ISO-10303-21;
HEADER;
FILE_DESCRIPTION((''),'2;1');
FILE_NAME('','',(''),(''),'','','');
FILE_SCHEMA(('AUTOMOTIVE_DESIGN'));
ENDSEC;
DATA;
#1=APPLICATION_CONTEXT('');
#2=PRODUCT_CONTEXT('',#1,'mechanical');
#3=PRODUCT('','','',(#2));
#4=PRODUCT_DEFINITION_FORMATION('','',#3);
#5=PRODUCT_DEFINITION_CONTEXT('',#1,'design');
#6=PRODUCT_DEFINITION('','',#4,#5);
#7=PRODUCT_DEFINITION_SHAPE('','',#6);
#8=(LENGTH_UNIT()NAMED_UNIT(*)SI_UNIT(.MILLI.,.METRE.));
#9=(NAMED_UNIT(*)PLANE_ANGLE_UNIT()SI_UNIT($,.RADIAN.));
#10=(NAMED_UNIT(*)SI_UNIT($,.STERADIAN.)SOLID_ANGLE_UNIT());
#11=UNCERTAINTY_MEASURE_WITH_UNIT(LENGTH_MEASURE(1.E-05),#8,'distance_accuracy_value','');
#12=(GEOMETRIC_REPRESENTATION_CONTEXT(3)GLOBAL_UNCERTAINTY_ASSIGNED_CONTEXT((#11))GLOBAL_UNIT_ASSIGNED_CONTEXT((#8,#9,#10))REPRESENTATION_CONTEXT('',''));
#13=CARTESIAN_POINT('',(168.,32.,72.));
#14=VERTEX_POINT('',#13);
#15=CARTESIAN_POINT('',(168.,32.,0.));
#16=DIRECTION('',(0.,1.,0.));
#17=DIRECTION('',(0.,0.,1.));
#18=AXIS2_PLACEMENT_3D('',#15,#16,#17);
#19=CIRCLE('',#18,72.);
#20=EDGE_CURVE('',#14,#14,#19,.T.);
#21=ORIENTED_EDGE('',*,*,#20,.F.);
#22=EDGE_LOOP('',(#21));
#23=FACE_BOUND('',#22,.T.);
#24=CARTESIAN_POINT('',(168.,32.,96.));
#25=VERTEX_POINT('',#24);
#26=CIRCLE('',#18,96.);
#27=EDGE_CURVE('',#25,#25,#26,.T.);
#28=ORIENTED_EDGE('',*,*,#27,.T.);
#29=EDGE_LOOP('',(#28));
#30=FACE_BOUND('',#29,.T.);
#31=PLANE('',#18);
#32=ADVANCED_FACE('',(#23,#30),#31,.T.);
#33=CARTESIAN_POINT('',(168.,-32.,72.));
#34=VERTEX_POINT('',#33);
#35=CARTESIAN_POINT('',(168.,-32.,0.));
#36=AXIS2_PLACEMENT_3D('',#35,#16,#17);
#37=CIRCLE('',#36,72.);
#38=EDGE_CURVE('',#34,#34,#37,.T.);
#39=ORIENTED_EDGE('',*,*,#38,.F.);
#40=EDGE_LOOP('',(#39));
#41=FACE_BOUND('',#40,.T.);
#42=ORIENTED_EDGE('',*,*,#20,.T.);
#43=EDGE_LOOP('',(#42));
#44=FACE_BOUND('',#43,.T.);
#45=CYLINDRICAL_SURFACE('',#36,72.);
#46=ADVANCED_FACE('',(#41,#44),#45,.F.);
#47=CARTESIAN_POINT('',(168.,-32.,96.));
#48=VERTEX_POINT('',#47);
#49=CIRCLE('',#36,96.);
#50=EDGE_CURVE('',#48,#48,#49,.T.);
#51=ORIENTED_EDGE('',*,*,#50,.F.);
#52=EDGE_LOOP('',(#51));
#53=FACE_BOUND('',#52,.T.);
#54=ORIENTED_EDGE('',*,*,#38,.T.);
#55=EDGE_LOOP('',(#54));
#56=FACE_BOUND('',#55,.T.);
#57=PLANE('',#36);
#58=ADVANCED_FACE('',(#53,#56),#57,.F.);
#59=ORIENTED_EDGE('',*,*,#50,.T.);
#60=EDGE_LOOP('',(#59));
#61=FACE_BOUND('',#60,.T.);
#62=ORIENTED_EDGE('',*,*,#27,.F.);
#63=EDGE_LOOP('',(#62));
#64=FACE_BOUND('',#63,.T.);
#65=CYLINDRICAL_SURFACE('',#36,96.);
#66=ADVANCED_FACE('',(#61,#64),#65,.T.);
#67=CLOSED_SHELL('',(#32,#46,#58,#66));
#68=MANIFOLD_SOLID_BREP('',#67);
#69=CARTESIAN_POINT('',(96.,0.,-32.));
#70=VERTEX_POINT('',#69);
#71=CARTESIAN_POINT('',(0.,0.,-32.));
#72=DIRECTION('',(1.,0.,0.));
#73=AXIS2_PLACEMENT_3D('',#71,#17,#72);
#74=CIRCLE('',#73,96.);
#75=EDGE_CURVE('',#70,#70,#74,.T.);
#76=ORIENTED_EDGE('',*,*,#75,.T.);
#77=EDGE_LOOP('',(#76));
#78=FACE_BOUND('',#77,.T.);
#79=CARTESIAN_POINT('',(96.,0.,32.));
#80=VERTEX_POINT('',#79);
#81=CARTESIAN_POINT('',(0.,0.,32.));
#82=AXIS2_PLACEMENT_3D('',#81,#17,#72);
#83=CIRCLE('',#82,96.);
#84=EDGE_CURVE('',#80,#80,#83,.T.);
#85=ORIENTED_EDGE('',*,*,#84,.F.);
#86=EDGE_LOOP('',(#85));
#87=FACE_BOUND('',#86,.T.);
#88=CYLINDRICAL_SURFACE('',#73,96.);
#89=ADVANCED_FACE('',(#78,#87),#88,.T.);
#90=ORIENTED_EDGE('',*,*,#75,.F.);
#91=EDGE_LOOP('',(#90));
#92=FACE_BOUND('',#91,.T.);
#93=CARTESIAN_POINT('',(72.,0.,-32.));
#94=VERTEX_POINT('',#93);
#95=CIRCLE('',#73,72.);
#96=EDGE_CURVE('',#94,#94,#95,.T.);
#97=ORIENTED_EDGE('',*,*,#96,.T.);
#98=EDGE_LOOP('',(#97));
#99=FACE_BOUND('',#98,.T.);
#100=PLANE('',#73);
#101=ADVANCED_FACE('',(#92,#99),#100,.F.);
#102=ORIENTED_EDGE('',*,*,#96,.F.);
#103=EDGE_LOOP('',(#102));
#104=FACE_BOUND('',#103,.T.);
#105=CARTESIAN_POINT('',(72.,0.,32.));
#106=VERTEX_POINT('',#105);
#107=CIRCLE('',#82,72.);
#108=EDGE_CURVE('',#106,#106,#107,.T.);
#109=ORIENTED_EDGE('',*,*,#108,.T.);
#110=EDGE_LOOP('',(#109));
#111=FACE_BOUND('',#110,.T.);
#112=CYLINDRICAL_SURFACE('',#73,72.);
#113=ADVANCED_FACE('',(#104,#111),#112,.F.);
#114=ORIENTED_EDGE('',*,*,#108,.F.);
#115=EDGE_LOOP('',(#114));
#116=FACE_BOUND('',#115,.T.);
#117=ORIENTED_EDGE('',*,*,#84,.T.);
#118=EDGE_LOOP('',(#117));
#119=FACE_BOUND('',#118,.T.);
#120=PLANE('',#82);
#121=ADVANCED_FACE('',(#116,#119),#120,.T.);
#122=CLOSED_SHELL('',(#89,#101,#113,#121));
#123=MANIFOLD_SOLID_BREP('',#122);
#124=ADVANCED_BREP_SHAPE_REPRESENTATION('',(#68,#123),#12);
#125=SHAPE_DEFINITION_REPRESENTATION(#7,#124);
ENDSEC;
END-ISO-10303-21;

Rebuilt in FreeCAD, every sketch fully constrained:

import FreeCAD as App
import Part
import Sketcher
from FreeCAD import Vector
Q = App.Units.Quantity

doc = App.newDocument("Part")
params = doc.addObject("Spreadsheet::Sheet", "Params")
for row, (alias, value) in enumerate([
    ("sketch1_diameter", "192 mm"),
    ("sketch1_diameter2", "144 mm"),
    ("pad1_length", "32 mm"),
    ("pad1_length2", "32 mm"),
    ("sketch2_diameter", "192 mm"),
    ("sketch2_diameter2", "144 mm"),
    ("pad2_length", "32 mm"),
    ("pad2_length2", "32 mm"),
], start=1):
    params.set(f"A{row}", alias)
    params.set(f"B{row}", "=" + value)
    params.setAlias(f"B{row}", alias)

body = doc.addObject("PartDesign::Body", "Body")

# Sketch on XY plane
sketch1 = doc.addObject("Sketcher::SketchObject", "Sketch")
body.addObject(sketch1)
sketch1.AttachmentSupport = (doc.XY_Plane, [""])
sketch1.MapMode = "FlatFace"
sketch1.addGeometry([
    Part.Circle(Vector(0, 0, 0), Vector(0, 0, 1), 96),
    Part.Circle(Vector(0, 0, 0), Vector(0, 0, 1), 72),
], False)
sketch1.addConstraint([
    Sketcher.Constraint("Coincident", 0, 3, -1, 1),
    Sketcher.Constraint("Coincident", 1, 3, -1, 1),
    Sketcher.Constraint("Diameter", 0, Q("192 mm")),
    Sketcher.Constraint("Diameter", 1, Q("144 mm")),
])
sketch1.setExpression("Constraints[2]", "Params.sketch1_diameter")
sketch1.setExpression("Constraints[3]", "Params.sketch1_diameter2")
pad1 = doc.addObject("PartDesign::Pad", "Pad")
body.addObject(pad1)
pad1.Profile = sketch1
pad1.Type = "TwoLengths"
pad1.setExpression("Length", "Params.pad1_length")
pad1.setExpression("Length2", "Params.pad1_length2")
body2 = doc.addObject("PartDesign::Body", "Body001")

# Sketch on XZ plane
sketch2 = doc.addObject("Sketcher::SketchObject", "Sketch001")
body2.addObject(sketch2)
sketch2.AttachmentSupport = (doc.getObject("XZ_Plane001"), [""])
sketch2.MapMode = "FlatFace"
sketch2.addGeometry([
    Part.Circle(Vector(168, 0, 0), Vector(0, 0, 1), 96),
    Part.Circle(Vector(168, 0, 0), Vector(0, 0, 1), 72),
], False)
sketch2.addConstraint([
    Sketcher.Constraint("Coincident", 1, 3, 0, 3),
    Sketcher.Constraint("PointOnObject", 0, 3, -1),
    Sketcher.Constraint("Diameter", 0, Q("192 mm")),
    Sketcher.Constraint("Diameter", 1, Q("144 mm")),
    Sketcher.Constraint("DistanceX", -1, 1, 0, 3, Q("168 mm")),
])
sketch2.setExpression("Constraints[2]", "Params.sketch2_diameter")
sketch2.setExpression("Constraints[3]", "Params.sketch2_diameter2")
pad2 = doc.addObject("PartDesign::Pad", "Pad001")
body2.addObject(pad2)
pad2.Profile = sketch2
pad2.Type = "TwoLengths"
pad2.setExpression("Length", "Params.pad2_length")
pad2.setExpression("Length2", "Params.pad2_length2")
pad2.Reversed = True

doc.recompute()
